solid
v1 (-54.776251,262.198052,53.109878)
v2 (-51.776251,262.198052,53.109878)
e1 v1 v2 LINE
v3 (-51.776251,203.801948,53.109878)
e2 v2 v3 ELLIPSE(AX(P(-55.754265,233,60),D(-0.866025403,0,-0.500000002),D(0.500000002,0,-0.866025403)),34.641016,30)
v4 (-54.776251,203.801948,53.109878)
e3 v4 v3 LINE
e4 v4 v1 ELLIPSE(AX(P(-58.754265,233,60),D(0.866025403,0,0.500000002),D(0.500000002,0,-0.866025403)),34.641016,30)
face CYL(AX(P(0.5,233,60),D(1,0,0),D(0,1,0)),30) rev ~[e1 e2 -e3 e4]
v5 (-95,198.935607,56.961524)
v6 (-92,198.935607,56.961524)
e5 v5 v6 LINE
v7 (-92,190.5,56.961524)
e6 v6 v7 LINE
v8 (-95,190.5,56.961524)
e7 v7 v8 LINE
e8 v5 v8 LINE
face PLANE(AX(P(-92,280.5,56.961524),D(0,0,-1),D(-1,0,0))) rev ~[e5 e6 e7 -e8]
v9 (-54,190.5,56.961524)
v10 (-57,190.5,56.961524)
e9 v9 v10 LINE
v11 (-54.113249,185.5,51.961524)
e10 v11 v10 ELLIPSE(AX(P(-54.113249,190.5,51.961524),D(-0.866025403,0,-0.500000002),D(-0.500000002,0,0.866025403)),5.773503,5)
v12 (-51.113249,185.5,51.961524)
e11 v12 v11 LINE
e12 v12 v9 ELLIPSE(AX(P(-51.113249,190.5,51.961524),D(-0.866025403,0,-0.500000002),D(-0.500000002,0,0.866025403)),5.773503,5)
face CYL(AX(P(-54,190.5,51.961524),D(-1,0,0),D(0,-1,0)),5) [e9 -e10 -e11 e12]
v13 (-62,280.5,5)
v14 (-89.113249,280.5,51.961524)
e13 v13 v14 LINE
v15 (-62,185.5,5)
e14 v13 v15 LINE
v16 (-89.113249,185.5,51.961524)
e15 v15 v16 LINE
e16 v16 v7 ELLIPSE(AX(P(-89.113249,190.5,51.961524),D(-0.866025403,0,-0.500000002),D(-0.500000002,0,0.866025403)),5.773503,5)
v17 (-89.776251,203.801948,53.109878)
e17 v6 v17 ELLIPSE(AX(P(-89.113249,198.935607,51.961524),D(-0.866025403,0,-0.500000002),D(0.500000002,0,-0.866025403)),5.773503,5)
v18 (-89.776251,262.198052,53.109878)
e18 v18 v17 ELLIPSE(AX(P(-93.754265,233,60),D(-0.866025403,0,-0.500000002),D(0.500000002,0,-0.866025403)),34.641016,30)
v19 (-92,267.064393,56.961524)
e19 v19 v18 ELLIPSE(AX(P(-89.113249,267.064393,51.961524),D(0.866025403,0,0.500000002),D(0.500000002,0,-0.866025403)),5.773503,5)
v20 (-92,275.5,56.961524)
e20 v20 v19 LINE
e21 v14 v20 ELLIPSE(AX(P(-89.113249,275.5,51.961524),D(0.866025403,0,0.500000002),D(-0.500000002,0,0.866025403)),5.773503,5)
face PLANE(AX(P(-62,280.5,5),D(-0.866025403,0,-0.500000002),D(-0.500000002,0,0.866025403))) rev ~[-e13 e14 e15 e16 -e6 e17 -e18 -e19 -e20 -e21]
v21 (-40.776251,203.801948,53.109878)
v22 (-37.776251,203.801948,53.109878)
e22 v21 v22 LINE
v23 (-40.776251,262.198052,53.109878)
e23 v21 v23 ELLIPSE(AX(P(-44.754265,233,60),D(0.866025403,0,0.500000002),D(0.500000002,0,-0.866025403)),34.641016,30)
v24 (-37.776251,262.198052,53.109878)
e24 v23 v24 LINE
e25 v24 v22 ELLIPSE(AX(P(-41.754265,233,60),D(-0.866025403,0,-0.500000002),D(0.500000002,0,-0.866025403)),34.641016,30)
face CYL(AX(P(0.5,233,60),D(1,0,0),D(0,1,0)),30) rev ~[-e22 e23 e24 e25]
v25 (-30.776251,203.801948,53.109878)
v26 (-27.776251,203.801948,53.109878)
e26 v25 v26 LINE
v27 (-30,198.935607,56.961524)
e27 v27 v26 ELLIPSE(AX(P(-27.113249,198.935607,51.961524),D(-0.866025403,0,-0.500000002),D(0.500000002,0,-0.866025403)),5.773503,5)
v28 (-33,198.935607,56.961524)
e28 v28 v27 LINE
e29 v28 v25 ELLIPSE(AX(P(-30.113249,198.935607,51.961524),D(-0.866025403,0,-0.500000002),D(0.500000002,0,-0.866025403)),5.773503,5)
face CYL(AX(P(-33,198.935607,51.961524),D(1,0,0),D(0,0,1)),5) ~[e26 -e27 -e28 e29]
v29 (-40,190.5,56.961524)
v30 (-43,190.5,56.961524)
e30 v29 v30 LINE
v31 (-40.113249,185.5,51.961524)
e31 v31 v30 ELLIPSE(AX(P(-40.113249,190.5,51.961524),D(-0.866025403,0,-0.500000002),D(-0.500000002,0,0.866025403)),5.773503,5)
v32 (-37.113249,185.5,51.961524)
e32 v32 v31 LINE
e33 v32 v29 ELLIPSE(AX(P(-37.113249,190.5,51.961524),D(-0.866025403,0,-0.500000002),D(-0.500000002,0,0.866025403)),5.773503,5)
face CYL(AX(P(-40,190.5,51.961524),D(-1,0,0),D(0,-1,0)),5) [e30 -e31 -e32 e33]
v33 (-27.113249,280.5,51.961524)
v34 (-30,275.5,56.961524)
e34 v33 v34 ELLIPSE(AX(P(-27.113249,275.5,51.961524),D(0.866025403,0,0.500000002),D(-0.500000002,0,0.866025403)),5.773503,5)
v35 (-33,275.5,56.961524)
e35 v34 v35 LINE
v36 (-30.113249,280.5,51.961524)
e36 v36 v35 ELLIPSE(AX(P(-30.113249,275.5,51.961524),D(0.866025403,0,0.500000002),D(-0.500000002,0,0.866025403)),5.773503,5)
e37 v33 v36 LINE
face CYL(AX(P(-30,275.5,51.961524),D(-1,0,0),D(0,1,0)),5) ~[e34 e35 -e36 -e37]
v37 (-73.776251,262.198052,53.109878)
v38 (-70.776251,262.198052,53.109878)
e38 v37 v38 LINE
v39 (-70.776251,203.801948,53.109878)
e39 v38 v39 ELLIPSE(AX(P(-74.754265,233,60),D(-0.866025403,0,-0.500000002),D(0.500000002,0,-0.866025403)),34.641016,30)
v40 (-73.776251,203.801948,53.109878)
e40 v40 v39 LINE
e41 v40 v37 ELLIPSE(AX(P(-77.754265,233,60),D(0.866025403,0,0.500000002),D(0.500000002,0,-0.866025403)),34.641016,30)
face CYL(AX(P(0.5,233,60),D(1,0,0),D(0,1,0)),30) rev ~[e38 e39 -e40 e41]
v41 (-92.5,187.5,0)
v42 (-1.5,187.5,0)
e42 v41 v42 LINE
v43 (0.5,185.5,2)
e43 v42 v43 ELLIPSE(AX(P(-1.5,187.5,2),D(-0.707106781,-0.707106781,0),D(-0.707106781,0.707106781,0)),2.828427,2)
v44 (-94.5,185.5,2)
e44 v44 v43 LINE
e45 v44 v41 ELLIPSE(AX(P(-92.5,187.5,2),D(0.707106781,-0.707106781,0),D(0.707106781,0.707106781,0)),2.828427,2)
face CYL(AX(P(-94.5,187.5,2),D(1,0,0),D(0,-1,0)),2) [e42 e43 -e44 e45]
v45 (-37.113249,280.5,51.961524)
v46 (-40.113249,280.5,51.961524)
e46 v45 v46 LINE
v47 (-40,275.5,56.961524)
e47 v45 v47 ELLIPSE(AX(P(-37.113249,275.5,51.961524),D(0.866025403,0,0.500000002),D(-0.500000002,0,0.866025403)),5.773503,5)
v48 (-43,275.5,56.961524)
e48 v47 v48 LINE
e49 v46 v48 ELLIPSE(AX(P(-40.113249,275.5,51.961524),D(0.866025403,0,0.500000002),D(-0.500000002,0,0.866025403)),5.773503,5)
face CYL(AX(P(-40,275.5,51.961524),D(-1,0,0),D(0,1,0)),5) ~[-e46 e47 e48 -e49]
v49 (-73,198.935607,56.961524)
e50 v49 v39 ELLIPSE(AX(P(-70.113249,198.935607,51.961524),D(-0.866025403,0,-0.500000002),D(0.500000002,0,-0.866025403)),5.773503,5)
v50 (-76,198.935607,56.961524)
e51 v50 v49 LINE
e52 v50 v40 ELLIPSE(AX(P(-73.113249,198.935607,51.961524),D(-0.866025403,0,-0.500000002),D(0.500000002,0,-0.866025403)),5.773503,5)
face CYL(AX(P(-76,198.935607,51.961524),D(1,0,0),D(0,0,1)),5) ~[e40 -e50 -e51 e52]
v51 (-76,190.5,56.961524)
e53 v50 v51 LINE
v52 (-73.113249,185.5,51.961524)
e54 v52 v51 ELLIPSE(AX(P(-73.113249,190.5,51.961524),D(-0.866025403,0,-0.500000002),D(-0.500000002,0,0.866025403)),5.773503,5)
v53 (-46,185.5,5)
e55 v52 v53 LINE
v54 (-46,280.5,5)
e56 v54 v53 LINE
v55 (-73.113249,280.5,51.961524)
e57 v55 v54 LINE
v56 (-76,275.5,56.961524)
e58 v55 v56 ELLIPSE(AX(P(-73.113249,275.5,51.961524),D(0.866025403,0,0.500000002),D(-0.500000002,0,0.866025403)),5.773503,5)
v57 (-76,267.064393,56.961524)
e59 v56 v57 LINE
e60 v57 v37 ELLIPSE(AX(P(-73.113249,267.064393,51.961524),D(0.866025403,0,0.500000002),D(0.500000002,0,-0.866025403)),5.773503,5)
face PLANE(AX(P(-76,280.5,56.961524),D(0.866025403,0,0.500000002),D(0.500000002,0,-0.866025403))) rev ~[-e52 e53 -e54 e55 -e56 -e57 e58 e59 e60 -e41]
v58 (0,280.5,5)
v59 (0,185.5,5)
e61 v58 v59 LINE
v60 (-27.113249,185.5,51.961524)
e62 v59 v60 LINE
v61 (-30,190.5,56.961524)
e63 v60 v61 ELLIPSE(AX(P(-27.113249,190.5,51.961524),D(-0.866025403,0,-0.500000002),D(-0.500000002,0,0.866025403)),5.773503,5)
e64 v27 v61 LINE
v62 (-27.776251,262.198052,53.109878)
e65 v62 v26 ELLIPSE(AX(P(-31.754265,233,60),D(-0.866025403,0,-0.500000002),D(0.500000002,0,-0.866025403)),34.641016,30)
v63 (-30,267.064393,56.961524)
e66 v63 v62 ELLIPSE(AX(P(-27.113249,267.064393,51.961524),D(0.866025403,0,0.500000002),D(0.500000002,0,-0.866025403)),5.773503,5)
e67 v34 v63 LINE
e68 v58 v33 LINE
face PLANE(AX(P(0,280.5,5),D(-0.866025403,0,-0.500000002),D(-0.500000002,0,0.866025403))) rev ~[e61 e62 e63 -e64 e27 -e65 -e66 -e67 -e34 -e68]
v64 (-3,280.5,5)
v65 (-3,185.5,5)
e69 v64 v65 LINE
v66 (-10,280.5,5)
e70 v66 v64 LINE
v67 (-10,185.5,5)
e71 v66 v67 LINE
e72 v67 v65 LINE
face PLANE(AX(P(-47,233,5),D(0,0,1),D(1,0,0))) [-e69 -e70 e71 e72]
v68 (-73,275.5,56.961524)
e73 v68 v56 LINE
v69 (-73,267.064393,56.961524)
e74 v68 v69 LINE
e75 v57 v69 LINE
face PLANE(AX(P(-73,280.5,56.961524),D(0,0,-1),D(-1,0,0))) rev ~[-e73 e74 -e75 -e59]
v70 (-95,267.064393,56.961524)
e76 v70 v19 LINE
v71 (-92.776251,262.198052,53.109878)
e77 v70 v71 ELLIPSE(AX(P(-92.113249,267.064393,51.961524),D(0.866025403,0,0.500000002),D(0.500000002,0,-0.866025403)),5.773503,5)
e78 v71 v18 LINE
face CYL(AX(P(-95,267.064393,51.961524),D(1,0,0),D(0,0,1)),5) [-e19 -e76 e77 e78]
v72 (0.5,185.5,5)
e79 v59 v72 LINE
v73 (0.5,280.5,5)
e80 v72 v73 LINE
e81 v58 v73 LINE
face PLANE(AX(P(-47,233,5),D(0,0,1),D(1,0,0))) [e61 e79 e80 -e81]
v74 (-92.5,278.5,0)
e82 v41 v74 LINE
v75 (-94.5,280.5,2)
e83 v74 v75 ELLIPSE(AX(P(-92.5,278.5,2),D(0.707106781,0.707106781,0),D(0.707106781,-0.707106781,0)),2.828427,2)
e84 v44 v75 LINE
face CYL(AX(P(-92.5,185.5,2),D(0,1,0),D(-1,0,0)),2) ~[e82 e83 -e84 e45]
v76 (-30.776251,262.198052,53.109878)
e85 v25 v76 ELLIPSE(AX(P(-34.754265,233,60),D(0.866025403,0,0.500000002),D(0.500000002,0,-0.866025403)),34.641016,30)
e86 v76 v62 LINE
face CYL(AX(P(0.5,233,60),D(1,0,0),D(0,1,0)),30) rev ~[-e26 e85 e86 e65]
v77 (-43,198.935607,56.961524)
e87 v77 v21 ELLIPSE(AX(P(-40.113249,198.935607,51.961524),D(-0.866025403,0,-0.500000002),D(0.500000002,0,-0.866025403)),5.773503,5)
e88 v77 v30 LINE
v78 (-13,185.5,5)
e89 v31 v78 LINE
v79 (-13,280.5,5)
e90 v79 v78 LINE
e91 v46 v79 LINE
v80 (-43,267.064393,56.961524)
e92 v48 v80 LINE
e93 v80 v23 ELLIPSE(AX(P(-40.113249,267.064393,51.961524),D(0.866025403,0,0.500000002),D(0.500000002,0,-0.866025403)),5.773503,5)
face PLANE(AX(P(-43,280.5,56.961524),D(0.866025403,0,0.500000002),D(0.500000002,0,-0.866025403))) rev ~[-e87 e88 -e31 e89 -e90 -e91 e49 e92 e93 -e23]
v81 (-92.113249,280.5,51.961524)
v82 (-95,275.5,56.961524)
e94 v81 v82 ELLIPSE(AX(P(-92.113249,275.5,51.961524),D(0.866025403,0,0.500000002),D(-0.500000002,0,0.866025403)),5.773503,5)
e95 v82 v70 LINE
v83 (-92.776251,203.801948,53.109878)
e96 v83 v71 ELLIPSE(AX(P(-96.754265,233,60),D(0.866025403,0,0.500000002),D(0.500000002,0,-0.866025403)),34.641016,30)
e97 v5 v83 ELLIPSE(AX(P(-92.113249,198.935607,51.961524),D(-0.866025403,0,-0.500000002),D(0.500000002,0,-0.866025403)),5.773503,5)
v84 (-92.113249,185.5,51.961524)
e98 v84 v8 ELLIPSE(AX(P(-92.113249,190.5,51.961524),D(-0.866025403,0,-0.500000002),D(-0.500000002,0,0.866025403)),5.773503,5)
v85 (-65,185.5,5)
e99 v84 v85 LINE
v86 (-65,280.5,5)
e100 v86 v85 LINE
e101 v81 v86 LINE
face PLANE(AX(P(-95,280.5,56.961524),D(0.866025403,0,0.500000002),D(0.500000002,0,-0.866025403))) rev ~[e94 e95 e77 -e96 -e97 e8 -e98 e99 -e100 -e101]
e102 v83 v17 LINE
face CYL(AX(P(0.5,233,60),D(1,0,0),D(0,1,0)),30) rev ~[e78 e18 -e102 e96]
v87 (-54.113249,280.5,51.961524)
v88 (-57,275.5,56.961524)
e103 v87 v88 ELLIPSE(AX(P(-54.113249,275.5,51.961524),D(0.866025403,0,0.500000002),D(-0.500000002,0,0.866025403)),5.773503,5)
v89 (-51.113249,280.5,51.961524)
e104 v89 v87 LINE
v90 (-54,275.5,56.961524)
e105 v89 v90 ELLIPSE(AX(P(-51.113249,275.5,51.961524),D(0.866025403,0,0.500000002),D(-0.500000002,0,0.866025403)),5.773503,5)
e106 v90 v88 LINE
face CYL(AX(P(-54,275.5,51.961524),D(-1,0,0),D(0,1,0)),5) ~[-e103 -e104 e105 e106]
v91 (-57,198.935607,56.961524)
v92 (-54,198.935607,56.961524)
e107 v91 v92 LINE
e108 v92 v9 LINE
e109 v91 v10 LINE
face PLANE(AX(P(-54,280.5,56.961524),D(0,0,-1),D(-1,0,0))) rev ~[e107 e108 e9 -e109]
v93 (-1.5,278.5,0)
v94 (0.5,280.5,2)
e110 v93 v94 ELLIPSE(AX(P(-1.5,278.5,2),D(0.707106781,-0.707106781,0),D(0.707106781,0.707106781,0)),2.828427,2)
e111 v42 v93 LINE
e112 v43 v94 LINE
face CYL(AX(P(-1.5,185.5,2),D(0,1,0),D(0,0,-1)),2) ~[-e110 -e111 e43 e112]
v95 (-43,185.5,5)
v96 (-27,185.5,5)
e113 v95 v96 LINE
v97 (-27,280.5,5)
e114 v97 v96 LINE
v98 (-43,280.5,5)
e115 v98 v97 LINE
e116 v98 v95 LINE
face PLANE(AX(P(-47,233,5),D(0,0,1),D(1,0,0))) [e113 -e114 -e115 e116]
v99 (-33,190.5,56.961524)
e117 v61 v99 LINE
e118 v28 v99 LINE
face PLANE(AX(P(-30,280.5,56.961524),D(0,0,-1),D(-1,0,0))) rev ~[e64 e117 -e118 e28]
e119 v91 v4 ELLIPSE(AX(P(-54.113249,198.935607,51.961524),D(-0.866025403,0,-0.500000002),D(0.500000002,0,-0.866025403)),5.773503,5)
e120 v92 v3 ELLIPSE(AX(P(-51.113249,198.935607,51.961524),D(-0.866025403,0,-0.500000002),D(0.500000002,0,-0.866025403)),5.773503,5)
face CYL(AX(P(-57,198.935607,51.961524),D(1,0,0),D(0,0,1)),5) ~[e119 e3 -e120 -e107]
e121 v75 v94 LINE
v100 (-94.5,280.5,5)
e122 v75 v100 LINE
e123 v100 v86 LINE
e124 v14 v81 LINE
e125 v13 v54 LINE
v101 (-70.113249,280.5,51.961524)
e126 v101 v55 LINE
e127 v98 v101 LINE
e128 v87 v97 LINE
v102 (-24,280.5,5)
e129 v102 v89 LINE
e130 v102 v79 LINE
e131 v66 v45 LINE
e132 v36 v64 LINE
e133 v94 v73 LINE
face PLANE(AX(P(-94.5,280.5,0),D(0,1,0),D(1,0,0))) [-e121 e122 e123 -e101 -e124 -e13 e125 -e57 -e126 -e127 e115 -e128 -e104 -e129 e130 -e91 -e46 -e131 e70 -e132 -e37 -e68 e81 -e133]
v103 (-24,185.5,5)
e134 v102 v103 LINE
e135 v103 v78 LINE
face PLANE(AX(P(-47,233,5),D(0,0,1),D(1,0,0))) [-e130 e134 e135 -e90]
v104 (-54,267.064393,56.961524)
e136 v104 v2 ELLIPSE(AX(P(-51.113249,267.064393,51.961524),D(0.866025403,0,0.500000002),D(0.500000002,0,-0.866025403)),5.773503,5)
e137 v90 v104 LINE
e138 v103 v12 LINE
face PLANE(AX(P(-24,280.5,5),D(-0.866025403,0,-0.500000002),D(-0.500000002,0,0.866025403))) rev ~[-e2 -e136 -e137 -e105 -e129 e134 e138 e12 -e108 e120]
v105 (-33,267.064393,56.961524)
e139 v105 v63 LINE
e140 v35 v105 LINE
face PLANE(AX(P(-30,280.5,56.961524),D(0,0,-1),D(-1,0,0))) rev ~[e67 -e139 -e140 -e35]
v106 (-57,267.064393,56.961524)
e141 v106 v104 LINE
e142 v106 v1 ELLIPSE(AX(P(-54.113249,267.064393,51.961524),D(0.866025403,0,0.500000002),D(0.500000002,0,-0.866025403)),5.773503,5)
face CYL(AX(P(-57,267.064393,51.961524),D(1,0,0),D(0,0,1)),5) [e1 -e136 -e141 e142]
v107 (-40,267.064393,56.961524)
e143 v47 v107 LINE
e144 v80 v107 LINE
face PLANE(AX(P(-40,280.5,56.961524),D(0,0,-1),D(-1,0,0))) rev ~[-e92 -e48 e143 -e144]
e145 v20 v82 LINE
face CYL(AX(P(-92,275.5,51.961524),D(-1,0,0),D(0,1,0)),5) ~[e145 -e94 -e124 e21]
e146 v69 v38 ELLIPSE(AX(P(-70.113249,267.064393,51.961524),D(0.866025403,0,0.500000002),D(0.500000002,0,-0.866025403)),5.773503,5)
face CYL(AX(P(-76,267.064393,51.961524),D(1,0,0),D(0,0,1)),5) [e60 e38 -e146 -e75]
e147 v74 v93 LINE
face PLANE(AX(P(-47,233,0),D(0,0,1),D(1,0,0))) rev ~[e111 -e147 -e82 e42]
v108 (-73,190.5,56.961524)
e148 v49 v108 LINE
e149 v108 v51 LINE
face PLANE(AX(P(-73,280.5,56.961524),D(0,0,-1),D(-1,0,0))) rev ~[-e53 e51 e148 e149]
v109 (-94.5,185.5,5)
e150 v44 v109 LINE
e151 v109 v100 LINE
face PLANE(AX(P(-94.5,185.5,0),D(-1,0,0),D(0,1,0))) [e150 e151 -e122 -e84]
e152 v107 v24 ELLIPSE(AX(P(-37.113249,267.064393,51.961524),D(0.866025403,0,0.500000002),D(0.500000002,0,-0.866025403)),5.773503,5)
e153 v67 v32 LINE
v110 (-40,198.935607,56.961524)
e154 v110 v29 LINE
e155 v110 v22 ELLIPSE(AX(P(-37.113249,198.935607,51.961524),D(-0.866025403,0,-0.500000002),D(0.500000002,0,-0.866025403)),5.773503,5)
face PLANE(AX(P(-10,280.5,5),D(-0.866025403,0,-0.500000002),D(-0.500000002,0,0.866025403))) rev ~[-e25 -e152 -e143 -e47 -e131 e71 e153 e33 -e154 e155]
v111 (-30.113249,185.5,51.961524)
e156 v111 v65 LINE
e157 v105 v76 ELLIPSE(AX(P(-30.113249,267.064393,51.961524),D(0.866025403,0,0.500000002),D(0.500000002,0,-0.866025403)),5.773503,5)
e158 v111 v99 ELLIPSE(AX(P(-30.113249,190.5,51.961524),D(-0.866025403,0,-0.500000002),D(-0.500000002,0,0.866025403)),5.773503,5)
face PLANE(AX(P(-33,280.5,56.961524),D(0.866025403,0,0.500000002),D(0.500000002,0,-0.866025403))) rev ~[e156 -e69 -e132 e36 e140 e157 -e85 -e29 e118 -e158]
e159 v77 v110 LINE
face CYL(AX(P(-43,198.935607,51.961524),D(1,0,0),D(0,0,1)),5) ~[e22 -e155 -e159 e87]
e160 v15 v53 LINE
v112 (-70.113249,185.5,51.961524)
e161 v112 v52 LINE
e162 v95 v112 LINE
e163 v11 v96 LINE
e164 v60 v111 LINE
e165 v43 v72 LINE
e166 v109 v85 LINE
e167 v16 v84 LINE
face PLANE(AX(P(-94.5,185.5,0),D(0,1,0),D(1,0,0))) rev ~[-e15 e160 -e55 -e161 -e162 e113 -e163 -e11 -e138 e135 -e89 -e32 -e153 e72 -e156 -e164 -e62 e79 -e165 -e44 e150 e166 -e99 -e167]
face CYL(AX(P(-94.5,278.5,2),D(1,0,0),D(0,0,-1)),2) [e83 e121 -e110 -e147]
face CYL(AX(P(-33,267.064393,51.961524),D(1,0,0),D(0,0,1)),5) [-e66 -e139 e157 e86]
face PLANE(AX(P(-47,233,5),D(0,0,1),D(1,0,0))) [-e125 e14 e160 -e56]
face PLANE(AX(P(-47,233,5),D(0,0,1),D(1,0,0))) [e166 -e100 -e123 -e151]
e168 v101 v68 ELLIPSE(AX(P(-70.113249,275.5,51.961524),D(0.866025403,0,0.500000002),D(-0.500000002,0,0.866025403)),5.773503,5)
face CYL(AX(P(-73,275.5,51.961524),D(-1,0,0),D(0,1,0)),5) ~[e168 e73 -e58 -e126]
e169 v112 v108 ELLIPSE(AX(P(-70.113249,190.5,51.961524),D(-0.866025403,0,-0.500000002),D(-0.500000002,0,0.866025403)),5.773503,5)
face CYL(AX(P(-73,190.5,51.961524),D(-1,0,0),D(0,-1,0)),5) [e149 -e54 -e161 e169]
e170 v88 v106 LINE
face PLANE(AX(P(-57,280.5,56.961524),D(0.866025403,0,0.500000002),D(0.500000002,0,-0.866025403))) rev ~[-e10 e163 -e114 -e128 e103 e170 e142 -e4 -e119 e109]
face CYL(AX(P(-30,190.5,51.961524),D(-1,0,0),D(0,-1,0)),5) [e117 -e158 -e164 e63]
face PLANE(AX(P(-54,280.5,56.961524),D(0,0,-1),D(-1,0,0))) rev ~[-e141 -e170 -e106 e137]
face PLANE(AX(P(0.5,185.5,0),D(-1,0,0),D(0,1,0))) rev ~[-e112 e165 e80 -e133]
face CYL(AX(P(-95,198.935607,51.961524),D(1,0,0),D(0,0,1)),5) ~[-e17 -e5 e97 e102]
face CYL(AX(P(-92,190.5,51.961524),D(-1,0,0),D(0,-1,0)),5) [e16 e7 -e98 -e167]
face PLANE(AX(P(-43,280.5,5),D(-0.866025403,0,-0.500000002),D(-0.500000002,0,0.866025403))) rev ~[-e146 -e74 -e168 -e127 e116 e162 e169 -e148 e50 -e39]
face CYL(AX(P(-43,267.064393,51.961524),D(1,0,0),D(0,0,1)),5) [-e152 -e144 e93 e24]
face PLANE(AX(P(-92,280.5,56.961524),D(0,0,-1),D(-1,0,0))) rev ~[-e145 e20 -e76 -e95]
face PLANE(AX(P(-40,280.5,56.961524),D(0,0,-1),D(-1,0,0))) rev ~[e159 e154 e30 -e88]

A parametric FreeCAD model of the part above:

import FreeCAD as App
import Part
import Sketcher

V = App.Vector
Q = App.Units.Quantity


def edges_at(feature, points):
    """Names of the edges that pass closest to the given points."""
    edges = feature.Shape.Edges
    near = lambda p: min(range(len(edges)), key=lambda i: edges[i].distToShape(Part.Vertex(*p))[0])
    return sorted({f"Edge{near(p) + 1}" for p in points})


def add_polygon(sketch, points):
    """Adds a closed chain of lines whose ends are joined by coincident constraints."""
    first, n = sketch.GeometryCount, len(points)
    for a, b in zip(points, points[1:] + points[:1]):
        sketch.addGeometry(Part.LineSegment(App.Vector(*a, 0), App.Vector(*b, 0)), False)
    for i in range(n):
        sketch.addConstraint(Sketcher.Constraint("Coincident", first + i, 2, first + (i + 1) % n, 1))

doc = App.newDocument("Part")
body = doc.addObject("PartDesign::Body", "Body")

sketch1 = body.newObject("Sketcher::SketchObject", "Sketch")
sketch1.AttachmentSupport = (doc.getObject("XY_Plane"), [""])
sketch1.MapMode = "FlatFace"
add_polygon(sketch1, [(-48, 48), (-48, -48), (48, -48), (48, 48)])
sketch1.addConstraint([
    Sketcher.Constraint("Vertical", 0),
    Sketcher.Constraint("Horizontal", 1),
    Sketcher.Constraint("Vertical", 2),
    Sketcher.Constraint("Horizontal", 3),
    Sketcher.Constraint("Symmetric", 0, 2, 2, 2, -1, 1),
    Sketcher.Constraint("Equal", 3, 0),
    Sketcher.Constraint("DistanceX", 1, 1, 1, 2, Q("95 mm")),
])
pad1 = body.newObject("PartDesign::Pad", "Pad")
pad1.Profile = sketch1
pad1.Length = 5

sketch2 = body.newObject("Sketcher::SketchObject", "Sketch001")
sketch2.AttachmentSupport = (doc.getObject("XZ_Plane"), [""])
sketch2.MapMode = "FlatFace"
sketch2.AttachmentOffset = App.Placement(V(0, 0, -47.5), App.Rotation())
add_polygon(sketch2, [(17, 57), (47, 5), (44, 5), (14, 57)])
add_polygon(sketch2, [(7, 57), (37, 5), (34, 5), (4, 57)])
add_polygon(sketch2, [(-7, 57), (23, 5), (20, 5), (-10, 57)])
add_polygon(sketch2, [(-26, 57), (4, 5), (1, 5), (-29, 57)])
add_polygon(sketch2, [(-45, 57), (-15, 5), (-18, 5), (-48, 57)])
sketch2.addConstraint([
    Sketcher.Constraint("Horizontal", 1),
    Sketcher.Constraint("Horizontal", 3),
    Sketcher.Constraint("Horizontal", 5),
    Sketcher.Constraint("Horizontal", 7),
    Sketcher.Constraint("Horizontal", 9),
    Sketcher.Constraint("Horizontal", 11),
    Sketcher.Constraint("Horizontal", 13),
    Sketcher.Constraint("Horizontal", 15),
    Sketcher.Constraint("Horizontal", 17),
    Sketcher.Constraint("Horizontal", 19),
    Sketcher.Constraint("Symmetric", 7, 2, 11, 2, -2),
    Sketcher.Constraint("Parallel", 0, 2),
    Sketcher.Constraint("Parallel", 2, 4),
    Sketcher.Constraint("Parallel", 4, 6),
    Sketcher.Constraint("Parallel", 6, 8),
    Sketcher.Constraint("Parallel", 8, 10),
    Sketcher.Constraint("Parallel", 10, 12),
    Sketcher.Constraint("Parallel", 12, 14),
    Sketcher.Constraint("Parallel", 14, 16),
    Sketcher.Constraint("Parallel", 16, 18),
    Sketcher.Constraint("Horizontal", 1, 2, 4, 2),
    Sketcher.Constraint("Horizontal", 3, 2, 6, 2),
    Sketcher.Constraint("Horizontal", 5, 2, 8, 2),
    Sketcher.Constraint("Horizontal", 9, 2, 12, 2),
    Sketcher.Constraint("Horizontal", 11, 2, 14, 2),
    Sketcher.Constraint("Horizontal", 13, 2, 16, 2),
    Sketcher.Constraint("Horizontal", 15, 2, 18, 2),
    Sketcher.Constraint("Vertical", 6, 2, 12, 2),
    Sketcher.Constraint("Equal", 3, 5),
    Sketcher.Constraint("Equal", 7, 9),
    Sketcher.Constraint("Equal", 11, 13),
    Sketcher.Constraint("Equal", 15, 17),
    Sketcher.Constraint("DistanceX", 1, 2, 1, 1, Q("3 mm")),
    Sketcher.Constraint("Angle", 0, Q("-60 deg")),
    Sketcher.Constraint("Distance", 0, Q("60 mm")),
    Sketcher.Constraint("DistanceX", -1, 1, 0, 2, Q("47 mm")),
    Sketcher.Constraint("DistanceY", -1, 1, 0, 2, Q("5 mm")),
    Sketcher.Constraint("DistanceX", -1, 1, 4, 2, Q("37 mm")),
    Sketcher.Constraint("DistanceX", 16, 2, -1, 1, Q("15 mm")),
])
pad2 = body.newObject("PartDesign::Pad", "Pad001")
pad2.Profile = sketch2
pad2.Length = 95

sketch3 = body.newObject("Sketcher::SketchObject", "Sketch002")
sketch3.AttachmentSupport = (doc.getObject("YZ_Plane"), [""])
sketch3.MapMode = "FlatFace"
sketch3.AttachmentOffset = App.Placement(V(0, 0, 47.5), App.Rotation())
sketch3.addGeometry(Part.Circle(V(0, 60, 0), V(0, 0, 1), 30), False)
sketch3.addConstraint([
    Sketcher.Constraint("PointOnObject", 0, 3, -2),
    Sketcher.Constraint("Diameter", 0, Q("60 mm")),
    Sketcher.Constraint("DistanceY", -1, 1, 0, 3, Q("60 mm")),
])
pocket1 = body.newObject("PartDesign::Pocket", "Pocket")
pocket1.Profile = sketch3
pocket1.Type = "ThroughAll"
doc.recompute()

fillet = body.newObject("PartDesign::Fillet", "Fillet")
fillet.Base = (pocket1, edges_at(pocket1, [
    (15.5, -47.5, 56.962),
    (15.5, -29.846, 56.962),
    (5.5, -47.5, 56.962),
    (5.5, -29.846, 56.962),
    (-8.5, -47.5, 56.962),
    (-8.5, -29.846, 56.962),
    (-27.5, -47.5, 56.962),
    (-27.5, -29.846, 56.962),
    (-46.5, -47.5, 56.962),
    (-46.5, -29.846, 56.962),
    (15.5, 29.846, 56.962),
    (15.5, 47.5, 56.962),
    (5.5, 29.846, 56.962),
    (5.5, 47.5, 56.962),
    (-8.5, 29.846, 56.962),
    (-8.5, 47.5, 56.962),
    (-27.5, 29.846, 56.962),
    (-27.5, 47.5, 56.962),
    (-46.5, 29.846, 56.962),
    (-46.5, 47.5, 56.962),
]))
fillet.Radius = 5
doc.recompute()

fillet2 = body.newObject("PartDesign::Fillet", "Fillet001")
fillet2.Base = (fillet, edges_at(fillet, [
    (0, 47.5, 0),
    (47.5, 0, 0),
    (0, -47.5, 0),
    (-47.5, 0, 0),
]))
fillet2.Radius = 2
body2 = doc.addObject("PartDesign::Body", "Body001")
doc.recompute()

body.Placement = App.Placement(V(-47, 233, 0), App.Rotation(V(0, 0, 1), 0))
boolean = body2.newObject("PartDesign::Boolean", "Boolean")
boolean.Type = "Fuse"
boolean.addObjects([body])

doc.recompute()
